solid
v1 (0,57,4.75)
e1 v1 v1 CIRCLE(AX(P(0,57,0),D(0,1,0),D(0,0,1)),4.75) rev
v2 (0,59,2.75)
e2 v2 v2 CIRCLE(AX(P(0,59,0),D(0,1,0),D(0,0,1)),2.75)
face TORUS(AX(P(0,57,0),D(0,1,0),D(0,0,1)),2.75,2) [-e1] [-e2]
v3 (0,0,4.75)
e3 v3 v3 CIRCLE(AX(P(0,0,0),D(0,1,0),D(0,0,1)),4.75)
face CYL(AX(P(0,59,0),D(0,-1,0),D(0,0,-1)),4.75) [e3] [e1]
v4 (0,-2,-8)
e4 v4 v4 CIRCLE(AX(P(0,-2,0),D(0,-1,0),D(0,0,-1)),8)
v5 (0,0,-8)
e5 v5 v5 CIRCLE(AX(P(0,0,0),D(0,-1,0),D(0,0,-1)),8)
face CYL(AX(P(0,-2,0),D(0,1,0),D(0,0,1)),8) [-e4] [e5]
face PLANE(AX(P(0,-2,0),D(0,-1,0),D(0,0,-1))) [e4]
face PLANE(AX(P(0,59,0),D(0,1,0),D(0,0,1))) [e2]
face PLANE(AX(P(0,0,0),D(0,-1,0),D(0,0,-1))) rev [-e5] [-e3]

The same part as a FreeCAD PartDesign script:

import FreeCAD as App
import Part
import Sketcher

V = App.Vector
Q = App.Units.Quantity


def edges_at(feature, points):
    """Names of the edges that pass closest to the given points."""
    edges = feature.Shape.Edges
    near = lambda p: min(range(len(edges)), key=lambda i: edges[i].distToShape(Part.Vertex(*p))[0])
    return sorted({f"Edge{near(p) + 1}" for p in points})

doc = App.newDocument("Part")
body = doc.addObject("PartDesign::Body", "Body")

sketch1 = body.newObject("Sketcher::SketchObject", "Sketch")
sketch1.AttachmentSupport = (doc.getObject("XZ_Plane"), [""])
sketch1.MapMode = "FlatFace"
sketch1.addGeometry(Part.Circle(V(0, 0, 0), V(0, 0, 1), 4.8), False)
sketch1.addConstraint([
    Sketcher.Constraint("Coincident", 0, 3, -1, 1),
    Sketcher.Constraint("Diameter", 0, Q("9.5 mm")),
])
pad1 = body.newObject("PartDesign::Pad", "Pad")
pad1.Profile = sketch1
pad1.Length = 59
pad1.Reversed = True

sketch2 = body.newObject("Sketcher::SketchObject", "Sketch001")
sketch2.AttachmentSupport = (doc.getObject("XZ_Plane"), [""])
sketch2.MapMode = "FlatFace"
sketch2.addGeometry(Part.Circle(V(0, 0, 0), V(0, 0, 1), 8), False)
sketch2.addConstraint([
    Sketcher.Constraint("Coincident", 0, 3, -1, 1),
    Sketcher.Constraint("Diameter", 0, Q("16 mm")),
])
pad2 = body.newObject("PartDesign::Pad", "Pad001")
pad2.Profile = sketch2
pad2.Length = 2
doc.recompute()

fillet = body.newObject("PartDesign::Fillet", "Fillet")
fillet.Base = (pad2, edges_at(pad2, [(-4.75, 59, 0)]))
fillet.Radius = 2

doc.recompute()
